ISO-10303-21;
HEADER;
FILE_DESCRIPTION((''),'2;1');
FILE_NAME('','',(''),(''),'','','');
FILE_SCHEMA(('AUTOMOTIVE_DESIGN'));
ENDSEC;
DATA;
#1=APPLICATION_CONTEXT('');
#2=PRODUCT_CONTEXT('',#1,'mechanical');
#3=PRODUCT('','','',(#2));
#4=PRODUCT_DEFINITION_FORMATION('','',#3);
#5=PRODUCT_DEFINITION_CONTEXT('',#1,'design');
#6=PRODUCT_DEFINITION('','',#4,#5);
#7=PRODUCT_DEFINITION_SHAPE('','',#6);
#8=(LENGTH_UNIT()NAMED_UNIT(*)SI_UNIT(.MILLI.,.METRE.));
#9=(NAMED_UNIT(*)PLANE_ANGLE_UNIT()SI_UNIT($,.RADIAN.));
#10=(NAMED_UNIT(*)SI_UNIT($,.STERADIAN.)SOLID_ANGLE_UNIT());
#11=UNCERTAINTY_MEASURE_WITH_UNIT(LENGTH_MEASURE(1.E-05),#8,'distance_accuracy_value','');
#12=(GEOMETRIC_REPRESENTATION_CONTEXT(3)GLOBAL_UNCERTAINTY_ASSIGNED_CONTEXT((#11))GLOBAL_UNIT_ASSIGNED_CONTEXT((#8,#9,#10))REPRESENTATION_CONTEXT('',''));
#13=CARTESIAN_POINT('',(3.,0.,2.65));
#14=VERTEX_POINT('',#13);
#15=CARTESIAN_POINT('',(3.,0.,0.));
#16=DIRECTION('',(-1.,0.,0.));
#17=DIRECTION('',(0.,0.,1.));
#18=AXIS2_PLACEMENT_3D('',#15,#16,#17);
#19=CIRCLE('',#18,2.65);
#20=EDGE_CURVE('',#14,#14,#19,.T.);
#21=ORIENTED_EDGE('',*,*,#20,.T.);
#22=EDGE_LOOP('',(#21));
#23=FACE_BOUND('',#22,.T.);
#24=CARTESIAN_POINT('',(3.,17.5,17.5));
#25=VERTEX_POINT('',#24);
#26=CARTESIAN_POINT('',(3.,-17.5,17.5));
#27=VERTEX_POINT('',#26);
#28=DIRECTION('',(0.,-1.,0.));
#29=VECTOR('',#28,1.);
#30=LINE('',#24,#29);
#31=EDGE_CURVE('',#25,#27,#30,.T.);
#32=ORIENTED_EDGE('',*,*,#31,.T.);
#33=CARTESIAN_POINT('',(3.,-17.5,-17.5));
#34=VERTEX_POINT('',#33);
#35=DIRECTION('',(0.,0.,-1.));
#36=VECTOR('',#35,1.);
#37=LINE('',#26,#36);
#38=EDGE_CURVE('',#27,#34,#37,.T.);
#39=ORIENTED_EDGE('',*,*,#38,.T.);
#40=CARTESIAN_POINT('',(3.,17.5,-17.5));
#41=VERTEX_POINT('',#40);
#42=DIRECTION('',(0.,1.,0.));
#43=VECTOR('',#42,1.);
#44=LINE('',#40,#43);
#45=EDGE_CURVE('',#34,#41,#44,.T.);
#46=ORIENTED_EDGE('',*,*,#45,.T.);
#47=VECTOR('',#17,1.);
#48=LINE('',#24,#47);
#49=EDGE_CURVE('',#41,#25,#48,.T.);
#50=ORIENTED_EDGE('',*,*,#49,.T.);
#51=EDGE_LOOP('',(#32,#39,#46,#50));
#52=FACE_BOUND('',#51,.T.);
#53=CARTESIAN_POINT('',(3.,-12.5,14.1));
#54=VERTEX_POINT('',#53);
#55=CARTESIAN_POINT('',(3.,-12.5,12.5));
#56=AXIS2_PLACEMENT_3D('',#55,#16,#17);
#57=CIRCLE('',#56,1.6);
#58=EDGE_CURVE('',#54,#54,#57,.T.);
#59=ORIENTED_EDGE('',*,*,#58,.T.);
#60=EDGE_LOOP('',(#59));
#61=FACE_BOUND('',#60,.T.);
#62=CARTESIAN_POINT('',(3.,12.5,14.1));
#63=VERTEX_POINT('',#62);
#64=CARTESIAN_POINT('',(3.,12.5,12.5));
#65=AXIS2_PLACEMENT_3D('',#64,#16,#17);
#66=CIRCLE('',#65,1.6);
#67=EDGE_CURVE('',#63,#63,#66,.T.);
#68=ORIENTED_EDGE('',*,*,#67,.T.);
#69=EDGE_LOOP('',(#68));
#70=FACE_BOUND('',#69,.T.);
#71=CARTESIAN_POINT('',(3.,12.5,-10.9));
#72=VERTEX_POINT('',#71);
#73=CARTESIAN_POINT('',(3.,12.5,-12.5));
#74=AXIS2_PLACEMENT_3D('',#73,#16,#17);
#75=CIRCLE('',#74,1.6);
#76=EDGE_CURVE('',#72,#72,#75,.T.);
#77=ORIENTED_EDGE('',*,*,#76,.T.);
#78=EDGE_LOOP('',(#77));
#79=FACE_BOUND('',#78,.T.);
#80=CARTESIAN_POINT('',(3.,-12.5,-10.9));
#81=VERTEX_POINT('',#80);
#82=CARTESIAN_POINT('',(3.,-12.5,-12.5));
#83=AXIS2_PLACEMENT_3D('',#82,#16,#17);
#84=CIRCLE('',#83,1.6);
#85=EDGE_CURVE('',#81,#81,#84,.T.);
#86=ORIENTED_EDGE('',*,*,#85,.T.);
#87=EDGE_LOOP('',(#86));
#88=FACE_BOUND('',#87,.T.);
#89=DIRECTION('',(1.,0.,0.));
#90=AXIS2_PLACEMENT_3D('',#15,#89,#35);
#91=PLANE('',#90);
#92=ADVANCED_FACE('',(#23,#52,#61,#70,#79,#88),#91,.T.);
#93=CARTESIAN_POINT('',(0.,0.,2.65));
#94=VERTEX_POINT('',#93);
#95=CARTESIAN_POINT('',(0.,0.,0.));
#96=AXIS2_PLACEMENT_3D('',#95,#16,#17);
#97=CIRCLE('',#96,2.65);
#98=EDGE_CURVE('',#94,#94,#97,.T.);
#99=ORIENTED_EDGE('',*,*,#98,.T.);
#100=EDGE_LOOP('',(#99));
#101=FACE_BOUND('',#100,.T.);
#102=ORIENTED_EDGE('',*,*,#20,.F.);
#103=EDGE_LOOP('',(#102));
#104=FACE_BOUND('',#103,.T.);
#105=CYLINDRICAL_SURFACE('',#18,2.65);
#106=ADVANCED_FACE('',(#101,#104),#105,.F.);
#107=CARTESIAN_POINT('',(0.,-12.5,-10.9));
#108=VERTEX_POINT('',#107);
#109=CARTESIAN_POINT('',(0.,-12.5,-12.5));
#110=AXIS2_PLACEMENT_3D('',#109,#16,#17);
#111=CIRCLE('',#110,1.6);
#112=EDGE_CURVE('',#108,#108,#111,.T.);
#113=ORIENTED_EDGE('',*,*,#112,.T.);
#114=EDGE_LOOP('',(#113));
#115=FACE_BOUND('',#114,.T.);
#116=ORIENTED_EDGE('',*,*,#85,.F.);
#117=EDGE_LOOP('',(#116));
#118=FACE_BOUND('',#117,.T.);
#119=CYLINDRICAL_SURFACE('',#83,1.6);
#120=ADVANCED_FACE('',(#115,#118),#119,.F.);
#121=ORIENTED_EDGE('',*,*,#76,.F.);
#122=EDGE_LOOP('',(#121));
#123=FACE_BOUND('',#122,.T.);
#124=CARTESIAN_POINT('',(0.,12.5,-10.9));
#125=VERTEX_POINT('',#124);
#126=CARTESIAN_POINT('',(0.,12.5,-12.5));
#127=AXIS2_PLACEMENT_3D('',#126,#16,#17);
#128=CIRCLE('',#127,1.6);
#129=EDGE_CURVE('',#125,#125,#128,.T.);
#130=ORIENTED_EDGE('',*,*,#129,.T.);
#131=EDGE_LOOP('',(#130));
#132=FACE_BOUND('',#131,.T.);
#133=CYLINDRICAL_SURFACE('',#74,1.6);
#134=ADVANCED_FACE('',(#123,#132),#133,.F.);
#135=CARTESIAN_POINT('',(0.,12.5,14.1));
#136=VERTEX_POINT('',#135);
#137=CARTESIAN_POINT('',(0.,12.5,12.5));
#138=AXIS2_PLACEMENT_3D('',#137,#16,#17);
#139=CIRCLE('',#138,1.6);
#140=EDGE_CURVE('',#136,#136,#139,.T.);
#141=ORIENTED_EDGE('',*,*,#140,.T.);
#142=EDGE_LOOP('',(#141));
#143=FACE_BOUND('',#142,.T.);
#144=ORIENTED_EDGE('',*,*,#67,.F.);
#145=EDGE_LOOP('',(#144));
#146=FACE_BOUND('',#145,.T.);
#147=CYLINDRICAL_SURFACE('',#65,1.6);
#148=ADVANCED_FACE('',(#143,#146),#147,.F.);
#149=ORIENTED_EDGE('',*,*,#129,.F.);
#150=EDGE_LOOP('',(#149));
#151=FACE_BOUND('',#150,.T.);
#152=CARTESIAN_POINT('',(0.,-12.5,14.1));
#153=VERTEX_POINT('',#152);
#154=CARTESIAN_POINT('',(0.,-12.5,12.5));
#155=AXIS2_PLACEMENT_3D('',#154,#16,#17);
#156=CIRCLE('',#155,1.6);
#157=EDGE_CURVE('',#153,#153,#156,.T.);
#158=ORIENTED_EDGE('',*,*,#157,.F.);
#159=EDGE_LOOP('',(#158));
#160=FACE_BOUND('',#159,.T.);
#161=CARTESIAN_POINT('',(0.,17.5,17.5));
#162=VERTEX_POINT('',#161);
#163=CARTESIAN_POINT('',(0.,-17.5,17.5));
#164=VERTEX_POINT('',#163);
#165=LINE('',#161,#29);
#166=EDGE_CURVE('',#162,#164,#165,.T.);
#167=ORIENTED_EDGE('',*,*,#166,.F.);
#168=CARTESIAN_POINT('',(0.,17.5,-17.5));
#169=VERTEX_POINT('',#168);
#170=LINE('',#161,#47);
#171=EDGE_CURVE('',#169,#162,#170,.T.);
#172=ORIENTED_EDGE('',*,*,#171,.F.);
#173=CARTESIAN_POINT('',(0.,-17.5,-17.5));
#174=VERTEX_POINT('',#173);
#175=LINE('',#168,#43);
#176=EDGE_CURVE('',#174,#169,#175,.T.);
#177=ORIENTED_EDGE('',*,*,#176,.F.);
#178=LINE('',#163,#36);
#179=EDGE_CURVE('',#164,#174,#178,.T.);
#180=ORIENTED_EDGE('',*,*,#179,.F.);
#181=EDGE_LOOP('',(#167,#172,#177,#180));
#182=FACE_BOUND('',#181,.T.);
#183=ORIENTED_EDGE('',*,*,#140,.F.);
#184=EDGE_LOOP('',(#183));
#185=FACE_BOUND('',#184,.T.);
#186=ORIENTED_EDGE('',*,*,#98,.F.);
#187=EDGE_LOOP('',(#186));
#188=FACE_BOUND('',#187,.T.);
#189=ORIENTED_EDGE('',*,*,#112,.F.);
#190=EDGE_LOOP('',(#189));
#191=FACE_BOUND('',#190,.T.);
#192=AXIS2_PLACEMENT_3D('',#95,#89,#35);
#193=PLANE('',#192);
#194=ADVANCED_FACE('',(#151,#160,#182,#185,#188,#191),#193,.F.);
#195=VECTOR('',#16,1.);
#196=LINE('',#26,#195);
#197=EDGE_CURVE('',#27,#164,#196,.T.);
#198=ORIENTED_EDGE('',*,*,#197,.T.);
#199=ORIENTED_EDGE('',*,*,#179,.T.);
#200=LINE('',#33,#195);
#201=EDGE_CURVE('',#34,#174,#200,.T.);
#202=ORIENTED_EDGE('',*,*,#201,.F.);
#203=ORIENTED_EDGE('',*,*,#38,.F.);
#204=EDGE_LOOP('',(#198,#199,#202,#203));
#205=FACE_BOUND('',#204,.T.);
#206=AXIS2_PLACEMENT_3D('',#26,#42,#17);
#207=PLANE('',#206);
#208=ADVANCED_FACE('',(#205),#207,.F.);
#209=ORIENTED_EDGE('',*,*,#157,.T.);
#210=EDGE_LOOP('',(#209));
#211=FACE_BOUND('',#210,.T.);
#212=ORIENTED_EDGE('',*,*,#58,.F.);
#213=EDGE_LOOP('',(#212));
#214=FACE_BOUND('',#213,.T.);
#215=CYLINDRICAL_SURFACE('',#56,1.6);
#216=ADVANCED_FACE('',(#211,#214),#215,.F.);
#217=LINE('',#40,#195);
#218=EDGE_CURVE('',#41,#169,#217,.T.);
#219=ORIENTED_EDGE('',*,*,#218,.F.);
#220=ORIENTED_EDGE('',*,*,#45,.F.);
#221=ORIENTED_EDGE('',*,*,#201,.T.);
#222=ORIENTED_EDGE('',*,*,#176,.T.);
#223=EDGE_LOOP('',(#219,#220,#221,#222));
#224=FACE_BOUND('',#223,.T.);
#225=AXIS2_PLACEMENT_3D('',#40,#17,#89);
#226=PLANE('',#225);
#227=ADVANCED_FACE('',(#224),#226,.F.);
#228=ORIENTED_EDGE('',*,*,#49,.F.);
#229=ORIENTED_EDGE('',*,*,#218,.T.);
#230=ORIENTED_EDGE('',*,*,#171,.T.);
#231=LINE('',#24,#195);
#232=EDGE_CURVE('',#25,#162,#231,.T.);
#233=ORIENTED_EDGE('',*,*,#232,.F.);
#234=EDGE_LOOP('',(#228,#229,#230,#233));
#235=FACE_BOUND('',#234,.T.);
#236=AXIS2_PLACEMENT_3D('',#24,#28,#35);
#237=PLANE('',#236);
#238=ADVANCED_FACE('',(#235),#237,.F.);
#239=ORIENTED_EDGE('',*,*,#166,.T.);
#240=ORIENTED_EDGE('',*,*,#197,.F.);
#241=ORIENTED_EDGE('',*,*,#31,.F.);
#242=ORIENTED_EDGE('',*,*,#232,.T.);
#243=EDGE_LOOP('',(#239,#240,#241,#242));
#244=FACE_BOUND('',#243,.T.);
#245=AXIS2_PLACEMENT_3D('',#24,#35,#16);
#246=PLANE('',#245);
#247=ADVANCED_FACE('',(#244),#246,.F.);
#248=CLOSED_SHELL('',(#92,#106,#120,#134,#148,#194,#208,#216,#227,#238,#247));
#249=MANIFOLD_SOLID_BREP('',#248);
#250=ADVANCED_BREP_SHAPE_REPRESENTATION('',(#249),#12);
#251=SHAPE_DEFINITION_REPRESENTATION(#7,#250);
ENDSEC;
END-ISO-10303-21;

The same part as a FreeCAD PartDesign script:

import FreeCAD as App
import Part
import Sketcher

V = App.Vector

doc = App.newDocument("Part")
body = doc.addObject("PartDesign::Body", "Body")

# Sketch on YZ plane
sketch1 = body.newObject("Sketcher::SketchObject", "Sketch")
sketch1.AttachmentSupport = (doc.getObject("YZ_Plane"), [""])
sketch1.MapMode = "FlatFace"
sketch1.addGeometry(Part.LineSegment(V(18, 18, 0), V(-18, 18, 0)), False)
sketch1.addGeometry(Part.LineSegment(V(-18, 18, 0), V(-18, -18, 0)), False)
sketch1.addGeometry(Part.LineSegment(V(-18, -18, 0), V(18, -18, 0)), False)
sketch1.addGeometry(Part.LineSegment(V(18, -18, 0), V(18, 18, 0)), False)
sketch1.addConstraint(Sketcher.Constraint("Coincident", 0, 2, 1, 1))
sketch1.addConstraint(Sketcher.Constraint("Coincident", 1, 2, 2, 1))
sketch1.addConstraint(Sketcher.Constraint("Coincident", 2, 2, 3, 1))
sketch1.addConstraint(Sketcher.Constraint("Coincident", 3, 2, 0, 1))
sketch1.addConstraint(Sketcher.Constraint("Horizontal", 0))
sketch1.addConstraint(Sketcher.Constraint("Vertical", 1))
sketch1.addConstraint(Sketcher.Constraint("Horizontal", 2))
sketch1.addConstraint(Sketcher.Constraint("Vertical", 3))
sketch1.addConstraint(Sketcher.Constraint("Symmetric", 0, 2, 2, 2, -1, 1))
sketch1.addConstraint(Sketcher.Constraint("Equal", 2, 1))
sketch1.addConstraint(Sketcher.Constraint("DistanceX", 0, 2, 0, 1, 35.0))
pad1 = body.newObject("PartDesign::Pad", "Pad")
pad1.Profile = sketch1
pad1.Length = 3

# Sketch on YZ plane
sketch2 = body.newObject("Sketcher::SketchObject", "Sketch001")
sketch2.AttachmentSupport = (doc.getObject("YZ_Plane"), [""])
sketch2.MapMode = "FlatFace"
sketch2.addGeometry(Part.Circle(V(12.5, -12.5, 0), V(0, 0, 1), 1.6), False)
sketch2.addGeometry(Part.Circle(V(-12.5, -12.5, 0), V(0, 0, 1), 1.6), False)
sketch2.addGeometry(Part.Circle(V(-12.5, 12.5, 0), V(0, 0, 1), 1.6), False)
sketch2.addGeometry(Part.Circle(V(12.5, 12.5, 0), V(0, 0, 1), 1.6), False)
sketch2.addConstraint(Sketcher.Constraint("Equal", 0, 1))
sketch2.addConstraint(Sketcher.Constraint("Equal", 1, 2))
sketch2.addConstraint(Sketcher.Constraint("Equal", 2, 3))
sketch2.addConstraint(Sketcher.Constraint("Symmetric", 0, 3, 2, 3, -1, 1))
sketch2.addConstraint(Sketcher.Constraint("Symmetric", 1, 3, 3, 3, -1, 1))
sketch2.addConstraint(Sketcher.Constraint("Symmetric", 0, 3, 1, 3, -2))
sketch2.addConstraint(Sketcher.Constraint("Diameter", 0, 3.2))
sketch2.addConstraint(Sketcher.Constraint("DistanceX", 1, 3, 0, 3, 25.0))
sketch2.addConstraint(Sketcher.Constraint("DistanceY", 1, 3, 2, 3, 25.0))
pocket1 = body.newObject("PartDesign::Pocket", "Pocket")
pocket1.Profile = sketch2
pocket1.Type = "ThroughAll"
pocket1.Reversed = True

# Sketch on YZ plane
sketch3 = body.newObject("Sketcher::SketchObject", "Sketch002")
sketch3.AttachmentSupport = (doc.getObject("YZ_Plane"), [""])
sketch3.MapMode = "FlatFace"
sketch3.addGeometry(Part.Circle(V(0, 0, 0), V(0, 0, 1), 2.6), False)
sketch3.addConstraint(Sketcher.Constraint("Coincident", 0, 3, -1, 1))
sketch3.addConstraint(Sketcher.Constraint("Diameter", 0, 5.3))
pocket2 = body.newObject("PartDesign::Pocket", "Pocket001")
pocket2.Profile = sketch3
pocket2.Type = "ThroughAll"
pocket2.Reversed = True

doc.recompute()
